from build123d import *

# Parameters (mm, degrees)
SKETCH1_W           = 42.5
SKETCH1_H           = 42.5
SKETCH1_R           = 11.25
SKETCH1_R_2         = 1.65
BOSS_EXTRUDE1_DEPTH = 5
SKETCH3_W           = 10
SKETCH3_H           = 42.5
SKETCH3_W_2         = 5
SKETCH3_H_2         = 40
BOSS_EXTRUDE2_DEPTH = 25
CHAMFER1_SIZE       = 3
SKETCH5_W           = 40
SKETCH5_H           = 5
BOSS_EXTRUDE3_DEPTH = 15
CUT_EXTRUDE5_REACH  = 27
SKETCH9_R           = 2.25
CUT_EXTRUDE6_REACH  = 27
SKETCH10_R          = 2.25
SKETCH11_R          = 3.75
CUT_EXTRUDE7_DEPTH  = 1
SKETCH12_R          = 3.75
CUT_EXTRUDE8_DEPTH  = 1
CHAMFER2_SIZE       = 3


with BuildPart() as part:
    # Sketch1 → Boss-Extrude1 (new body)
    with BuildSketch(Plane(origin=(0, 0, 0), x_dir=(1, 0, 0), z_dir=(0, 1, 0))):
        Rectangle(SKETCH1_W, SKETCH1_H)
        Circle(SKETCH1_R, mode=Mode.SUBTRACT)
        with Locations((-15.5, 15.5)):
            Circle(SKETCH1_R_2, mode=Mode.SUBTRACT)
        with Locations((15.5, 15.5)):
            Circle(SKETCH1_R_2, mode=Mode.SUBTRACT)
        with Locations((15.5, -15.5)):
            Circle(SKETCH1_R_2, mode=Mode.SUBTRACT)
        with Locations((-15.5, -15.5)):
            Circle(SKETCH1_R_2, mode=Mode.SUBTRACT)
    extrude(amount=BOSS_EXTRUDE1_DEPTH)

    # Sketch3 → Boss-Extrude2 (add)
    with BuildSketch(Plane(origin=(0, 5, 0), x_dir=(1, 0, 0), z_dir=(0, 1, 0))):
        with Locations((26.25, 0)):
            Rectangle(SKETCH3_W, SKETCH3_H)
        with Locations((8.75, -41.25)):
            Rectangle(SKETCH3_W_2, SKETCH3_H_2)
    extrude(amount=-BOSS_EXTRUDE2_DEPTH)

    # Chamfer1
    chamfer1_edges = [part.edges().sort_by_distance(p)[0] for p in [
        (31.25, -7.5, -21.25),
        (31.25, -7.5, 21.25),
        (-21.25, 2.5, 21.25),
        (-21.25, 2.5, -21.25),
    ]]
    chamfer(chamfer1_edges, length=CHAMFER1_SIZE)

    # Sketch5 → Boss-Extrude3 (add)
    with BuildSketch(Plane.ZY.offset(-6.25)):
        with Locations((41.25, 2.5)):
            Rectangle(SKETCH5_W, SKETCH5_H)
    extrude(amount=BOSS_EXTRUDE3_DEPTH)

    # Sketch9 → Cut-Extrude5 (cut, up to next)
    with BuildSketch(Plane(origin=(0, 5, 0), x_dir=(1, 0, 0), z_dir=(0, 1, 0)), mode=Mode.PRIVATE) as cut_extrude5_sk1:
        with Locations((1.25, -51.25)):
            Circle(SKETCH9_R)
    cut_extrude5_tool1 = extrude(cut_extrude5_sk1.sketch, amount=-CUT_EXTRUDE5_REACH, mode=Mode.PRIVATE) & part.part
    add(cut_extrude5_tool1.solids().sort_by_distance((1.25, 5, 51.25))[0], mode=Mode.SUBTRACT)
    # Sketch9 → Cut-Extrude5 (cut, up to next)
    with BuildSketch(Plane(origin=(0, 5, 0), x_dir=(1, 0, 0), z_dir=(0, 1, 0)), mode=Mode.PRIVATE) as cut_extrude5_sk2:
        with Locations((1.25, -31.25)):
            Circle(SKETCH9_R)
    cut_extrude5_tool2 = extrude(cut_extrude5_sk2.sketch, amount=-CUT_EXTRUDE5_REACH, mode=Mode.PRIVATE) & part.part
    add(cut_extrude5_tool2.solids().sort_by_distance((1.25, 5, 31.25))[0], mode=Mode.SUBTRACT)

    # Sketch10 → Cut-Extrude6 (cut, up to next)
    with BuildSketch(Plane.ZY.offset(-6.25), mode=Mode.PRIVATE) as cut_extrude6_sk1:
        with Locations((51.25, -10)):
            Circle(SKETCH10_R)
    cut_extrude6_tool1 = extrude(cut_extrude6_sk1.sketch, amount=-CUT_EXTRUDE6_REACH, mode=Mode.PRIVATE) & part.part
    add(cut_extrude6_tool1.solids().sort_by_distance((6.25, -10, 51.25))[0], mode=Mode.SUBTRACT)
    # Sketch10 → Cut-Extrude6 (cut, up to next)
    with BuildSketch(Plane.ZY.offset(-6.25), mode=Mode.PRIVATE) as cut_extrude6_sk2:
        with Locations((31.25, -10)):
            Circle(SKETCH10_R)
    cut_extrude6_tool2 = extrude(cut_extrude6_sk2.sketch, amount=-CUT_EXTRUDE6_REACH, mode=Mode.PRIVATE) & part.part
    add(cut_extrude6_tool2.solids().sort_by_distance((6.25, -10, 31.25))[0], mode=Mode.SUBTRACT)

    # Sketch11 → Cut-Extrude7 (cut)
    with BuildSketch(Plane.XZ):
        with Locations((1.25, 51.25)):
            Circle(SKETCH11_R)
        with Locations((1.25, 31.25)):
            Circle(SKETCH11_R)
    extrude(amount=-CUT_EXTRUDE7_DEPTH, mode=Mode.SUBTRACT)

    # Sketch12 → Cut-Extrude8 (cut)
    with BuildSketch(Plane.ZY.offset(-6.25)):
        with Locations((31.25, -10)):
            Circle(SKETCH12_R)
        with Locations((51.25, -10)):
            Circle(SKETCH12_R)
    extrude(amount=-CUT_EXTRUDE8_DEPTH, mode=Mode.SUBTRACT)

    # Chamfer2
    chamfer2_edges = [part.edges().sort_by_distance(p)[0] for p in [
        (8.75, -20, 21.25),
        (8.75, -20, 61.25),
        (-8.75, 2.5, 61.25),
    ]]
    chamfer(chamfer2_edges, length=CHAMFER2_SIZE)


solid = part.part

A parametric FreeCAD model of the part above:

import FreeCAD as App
import Part
import Sketcher
Q = App.Units.Quantity


def edges_at(feature, points):
    """Names of the edges that pass closest to the given points."""
    edges = feature.Shape.Edges
    near = lambda p: min(range(len(edges)), key=lambda i: edges[i].distToShape(Part.Vertex(*p))[0])
    return sorted({f"Edge{near(p) + 1}" for p in points})


def add_polygon(sketch, points):
    """Adds a closed chain of lines whose ends are joined by coincident constraints."""
    first, n = sketch.GeometryCount, len(points)
    for a, b in zip(points, points[1:] + points[:1]):
        sketch.addGeometry(Part.LineSegment(App.Vector(*a, 0), App.Vector(*b, 0)), False)
    for i in range(n):
        sketch.addConstraint(Sketcher.Constraint("Coincident", first + i, 2, first + (i + 1) % n, 1))

doc = App.newDocument("Part")
body = doc.addObject("PartDesign::Body", "Body")

# Sketch on XZ plane
sketch1 = doc.addObject("Sketcher::SketchObject", "Sketch")
body.addObject(sketch1)
sketch1.AttachmentSupport = (doc.XZ_Plane, [""])
sketch1.MapMode = "FlatFace"
add_polygon(sketch1, [(-21.25, -21.25), (-21.25, 21.25), (21.25, 21.25), (21.25, -21.25)])  # lines 0-3
sketch1.addGeometry(Part.Circle(App.Vector(-15.5, 15.5, 0), App.Vector(0, 0, 1), 1.65), False)  # 4
sketch1.addGeometry(Part.Circle(App.Vector(15.5, 15.5, 0), App.Vector(0, 0, 1), 1.65), False)  # 5
sketch1.addGeometry(Part.Circle(App.Vector(-15.5, -15.5, 0), App.Vector(0, 0, 1), 1.65), False)  # 6
sketch1.addGeometry(Part.Circle(App.Vector(0, 0, 0), App.Vector(0, 0, 1), 11.25), False)  # 7
sketch1.addGeometry(Part.Circle(App.Vector(15.5, -15.5, 0), App.Vector(0, 0, 1), 1.65), False)  # 8
sketch1.addConstraint(Sketcher.Constraint("Vertical", 0))
sketch1.addConstraint(Sketcher.Constraint("Horizontal", 1))
sketch1.addConstraint(Sketcher.Constraint("Vertical", 2))
sketch1.addConstraint(Sketcher.Constraint("Horizontal", 3))
sketch1.addConstraint(Sketcher.Constraint("Coincident", 7, 3, -1, 1))
sketch1.addConstraint(Sketcher.Constraint("Equal", 4, 5))
sketch1.addConstraint(Sketcher.Constraint("Equal", 5, 6))
sketch1.addConstraint(Sketcher.Constraint("Equal", 6, 8))
sketch1.addConstraint(Sketcher.Constraint("Symmetric", 5, 3, 6, 3, -1, 1))
sketch1.addConstraint(Sketcher.Constraint("Symmetric", 4, 3, 8, 3, -1, 1))
sketch1.addConstraint(Sketcher.Constraint("Symmetric", 0, 2, 2, 2, -1, 1))
sketch1.addConstraint(Sketcher.Constraint("Symmetric", 4, 3, 5, 3, -2))
sketch1.addConstraint(Sketcher.Constraint("Equal", 3, 0))
sketch1.addConstraint(Sketcher.Constraint("Diameter", 4, Q("3.3 mm")))
sketch1.addConstraint(Sketcher.Constraint("Diameter", 7, Q("22.5 mm")))
sketch1.addConstraint(Sketcher.Constraint("DistanceX", 1, 1, 1, 2, Q("42.5 mm")))
sketch1.addConstraint(Sketcher.Constraint("DistanceX", 4, 3, 5, 3, Q("31 mm")))
sketch1.addConstraint(Sketcher.Constraint("DistanceY", 6, 3, 4, 3, Q("31 mm")))
pad1 = doc.addObject("PartDesign::Pad", "Pad")
body.addObject(pad1)
pad1.Profile = sketch1
pad1.Length = 5
pad1.Reversed = True

# Sketch on XZ plane
sketch2 = doc.addObject("Sketcher::SketchObject", "Sketch001")
body.addObject(sketch2)
sketch2.AttachmentSupport = (doc.XZ_Plane, [""])
sketch2.MapMode = "FlatFace"
sketch2.AttachmentOffset = App.Placement(App.Vector(0, 0, -5), App.Rotation())
add_polygon(sketch2, [(21.25, -21.25), (21.25, 21.25), (31.25, 21.25), (31.25, -21.25)])  # lines 0-3
add_polygon(sketch2, [(6.25, 21.25), (6.25, 61.25), (11.25, 61.25), (11.25, 21.25)])  # lines 4-7
sketch2.addConstraint(Sketcher.Constraint("Vertical", 0))
sketch2.addConstraint(Sketcher.Constraint("Horizontal", 1))
sketch2.addConstraint(Sketcher.Constraint("Vertical", 2))
sketch2.addConstraint(Sketcher.Constraint("Horizontal", 3))
sketch2.addConstraint(Sketcher.Constraint("Vertical", 4))
sketch2.addConstraint(Sketcher.Constraint("Horizontal", 5))
sketch2.addConstraint(Sketcher.Constraint("Vertical", 6))
sketch2.addConstraint(Sketcher.Constraint("Horizontal", 7))
sketch2.addConstraint(Sketcher.Constraint("Horizontal", 1, 2, 6, 2))
sketch2.addConstraint(Sketcher.Constraint("DistanceX", 1, 1, 1, 2, Q("10 mm")))
sketch2.addConstraint(Sketcher.Constraint("DistanceX", 5, 1, 5, 2, Q("5 mm")))
sketch2.addConstraint(Sketcher.Constraint("DistanceY", 4, 1, 4, 2, Q("40 mm")))
sketch2.addConstraint(Sketcher.Constraint("DistanceY", 0, 1, 0, 2, Q("42.5 mm")))
sketch2.addConstraint(Sketcher.Constraint("DistanceX", 4, 2, 0, 2, Q("15 mm")))
sketch2.addConstraint(Sketcher.Constraint("DistanceX", -1, 1, 0, 2, Q("21.25 mm")))
sketch2.addConstraint(Sketcher.Constraint("DistanceY", -1, 1, 0, 2, Q("21.25 mm")))
pad2 = doc.addObject("PartDesign::Pad", "Pad001")
body.addObject(pad2)
pad2.Profile = sketch2
pad2.Length = 25
doc.recompute()

chamfer = doc.addObject("PartDesign::Chamfer", "Chamfer")
body.addObject(chamfer)
chamfer.Base = (pad2, edges_at(pad2, [
    (31.25, -7.5, -21.25),
    (31.25, -7.5, 21.25),
    (-21.25, 2.5, 21.25),
    (-21.25, 2.5, -21.25),
]))
chamfer.Size = 3

# Sketch on YZ plane
sketch3 = doc.addObject("Sketcher::SketchObject", "Sketch002")
body.addObject(sketch3)
sketch3.AttachmentSupport = (doc.YZ_Plane, [""])
sketch3.MapMode = "FlatFace"
sketch3.AttachmentOffset = App.Placement(App.Vector(0, 0, 6.25), App.Rotation())
add_polygon(sketch3, [(5, 21.25), (0, 21.25), (0, 61.25), (5, 61.25)])  # lines 0-3
sketch3.addConstraint(Sketcher.Constraint("Horizontal", 0))
sketch3.addConstraint(Sketcher.Constraint("Vertical", 1))
sketch3.addConstraint(Sketcher.Constraint("Horizontal", 2))
sketch3.addConstraint(Sketcher.Constraint("Vertical", 3))
sketch3.addConstraint(Sketcher.Constraint("PointOnObject", 0, 2, -2))
sketch3.addConstraint(Sketcher.Constraint("DistanceX", 0, 2, 0, 1, Q("5 mm")))
sketch3.addConstraint(Sketcher.Constraint("DistanceY", 1, 1, 1, 2, Q("40 mm")))
sketch3.addConstraint(Sketcher.Constraint("DistanceY", -1, 1, 0, 2, Q("21.25 mm")))
pad3 = doc.addObject("PartDesign::Pad", "Pad002")
body.addObject(pad3)
pad3.Profile = sketch3
pad3.Length = 15
pad3.Reversed = True

# Sketch on XZ plane
sketch4 = doc.addObject("Sketcher::SketchObject", "Sketch003")
body.addObject(sketch4)
sketch4.AttachmentSupport = (doc.XZ_Plane, [""])
sketch4.MapMode = "FlatFace"
sketch4.AttachmentOffset = App.Placement(App.Vector(0, 0, -5), App.Rotation())
sketch4.addGeometry(Part.Circle(App.Vector(1.25, 51.25, 0), App.Vector(0, 0, 1), 2.25), False)
sketch4.addConstraint(Sketcher.Constraint("Diameter", 0, Q("4.5 mm")))
sketch4.addConstraint(Sketcher.Constraint("DistanceX", -1, 1, 0, 3, Q("1.25 mm")))
sketch4.addConstraint(Sketcher.Constraint("DistanceY", -1, 1, 0, 3, Q("51.25 mm")))
pocket1 = doc.addObject("PartDesign::Pocket", "Pocket")
body.addObject(pocket1)
pocket1.Profile = sketch4
pocket1.Type = "UpToFirst"
pocket1.Reversed = True

# Sketch on XZ plane
sketch5 = doc.addObject("Sketcher::SketchObject", "Sketch004")
body.addObject(sketch5)
sketch5.AttachmentSupport = (doc.XZ_Plane, [""])
sketch5.MapMode = "FlatFace"
sketch5.AttachmentOffset = App.Placement(App.Vector(0, 0, -5), App.Rotation())
sketch5.addGeometry(Part.Circle(App.Vector(1.25, 31.25, 0), App.Vector(0, 0, 1), 2.25), False)
sketch5.addConstraint(Sketcher.Constraint("Diameter", 0, Q("4.5 mm")))
sketch5.addConstraint(Sketcher.Constraint("DistanceX", -1, 1, 0, 3, Q("1.25 mm")))
sketch5.addConstraint(Sketcher.Constraint("DistanceY", -1, 1, 0, 3, Q("31.25 mm")))
pocket2 = doc.addObject("PartDesign::Pocket", "Pocket001")
body.addObject(pocket2)
pocket2.Profile = sketch5
pocket2.Type = "UpToFirst"
pocket2.Reversed = True

# Sketch on YZ plane
sketch6 = doc.addObject("Sketcher::SketchObject", "Sketch005")
body.addObject(sketch6)
sketch6.AttachmentSupport = (doc.YZ_Plane, [""])
sketch6.MapMode = "FlatFace"
sketch6.AttachmentOffset = App.Placement(App.Vector(0, 0, 6.25), App.Rotation())
sketch6.addGeometry(Part.Circle(App.Vector(-10, 51.25, 0), App.Vector(0, 0, 1), 2.25), False)
sketch6.addConstraint(Sketcher.Constraint("Diameter", 0, Q("4.5 mm")))
sketch6.addConstraint(Sketcher.Constraint("DistanceX", 0, 3, -1, 1, Q("10 mm")))
sketch6.addConstraint(Sketcher.Constraint("DistanceY", -1, 1, 0, 3, Q("51.25 mm")))
pocket3 = doc.addObject("PartDesign::Pocket", "Pocket002")
body.addObject(pocket3)
pocket3.Profile = sketch6
pocket3.Type = "UpToFirst"
pocket3.Reversed = True

# Sketch on YZ plane
sketch7 = doc.addObject("Sketcher::SketchObject", "Sketch006")
body.addObject(sketch7)
sketch7.AttachmentSupport = (doc.YZ_Plane, [""])
sketch7.MapMode = "FlatFace"
sketch7.AttachmentOffset = App.Placement(App.Vector(0, 0, 6.25), App.Rotation())
sketch7.addGeometry(Part.Circle(App.Vector(-10, 31.25, 0), App.Vector(0, 0, 1), 2.25), False)
sketch7.addConstraint(Sketcher.Constraint("Diameter", 0, Q("4.5 mm")))
sketch7.addConstraint(Sketcher.Constraint("DistanceX", 0, 3, -1, 1, Q("10 mm")))
sketch7.addConstraint(Sketcher.Constraint("DistanceY", -1, 1, 0, 3, Q("31.25 mm")))
pocket4 = doc.addObject("PartDesign::Pocket", "Pocket003")
body.addObject(pocket4)
pocket4.Profile = sketch7
pocket4.Type = "UpToFirst"
pocket4.Reversed = True

# Sketch on XZ plane
sketch8 = doc.addObject("Sketcher::SketchObject", "Sketch007")
body.addObject(sketch8)
sketch8.AttachmentSupport = (doc.XZ_Plane, [""])
sketch8.MapMode = "FlatFace"
sketch8.addGeometry(Part.Circle(App.Vector(1.25, 51.25, 0), App.Vector(0, 0, 1), 3.75), False)
sketch8.addGeometry(Part.Circle(App.Vector(1.25, 31.25, 0), App.Vector(0, 0, 1), 3.75), False)
sketch8.addConstraint(Sketcher.Constraint("Equal", 0, 1))
sketch8.addConstraint(Sketcher.Constraint("Vertical", 0, 3, 1, 3))
sketch8.addConstraint(Sketcher.Constraint("Diameter", 0, Q("7.5 mm")))
sketch8.addConstraint(Sketcher.Constraint("DistanceY", 1, 3, 0, 3, Q("20 mm")))
sketch8.addConstraint(Sketcher.Constraint("DistanceX", -1, 1, 0, 3, Q("1.25 mm")))
sketch8.addConstraint(Sketcher.Constraint("DistanceY", -1, 1, 0, 3, Q("51.25 mm")))
pocket5 = doc.addObject("PartDesign::Pocket", "Pocket004")
body.addObject(pocket5)
pocket5.Profile = sketch8
pocket5.Length = 1

# Sketch on YZ plane
sketch9 = doc.addObject("Sketcher::SketchObject", "Sketch008")
body.addObject(sketch9)
sketch9.AttachmentSupport = (doc.YZ_Plane, [""])
sketch9.MapMode = "FlatFace"
sketch9.AttachmentOffset = App.Placement(App.Vector(0, 0, 6.25), App.Rotation())
sketch9.addGeometry(Part.Circle(App.Vector(-10, 31.25, 0), App.Vector(0, 0, 1), 3.75), False)
sketch9.addGeometry(Part.Circle(App.Vector(-10, 51.25, 0), App.Vector(0, 0, 1), 3.75), False)
sketch9.addConstraint(Sketcher.Constraint("Equal", 0, 1))
sketch9.addConstraint(Sketcher.Constraint("Vertical", 0, 3, 1, 3))
sketch9.addConstraint(Sketcher.Constraint("Diameter", 0, Q("7.5 mm")))
sketch9.addConstraint(Sketcher.Constraint("DistanceX", 0, 3, -1, 1, Q("10 mm")))
sketch9.addConstraint(Sketcher.Constraint("DistanceY", 0, 3, 1, 3, Q("20 mm")))
sketch9.addConstraint(Sketcher.Constraint("DistanceY", -1, 1, 0, 3, Q("31.25 mm")))
pocket6 = doc.addObject("PartDesign::Pocket", "Pocket005")
body.addObject(pocket6)
pocket6.Profile = sketch9
pocket6.Length = 1
pocket6.Reversed = True
doc.recompute()

chamfer2 = doc.addObject("PartDesign::Chamfer", "Chamfer001")
body.addObject(chamfer2)
chamfer2.Base = (pocket6, edges_at(pocket6, [(8.75, -20, 21.25), (8.75, -20, 61.25), (-8.75, 2.5, 61.25)]))
chamfer2.Size = 3

doc.recompute()
